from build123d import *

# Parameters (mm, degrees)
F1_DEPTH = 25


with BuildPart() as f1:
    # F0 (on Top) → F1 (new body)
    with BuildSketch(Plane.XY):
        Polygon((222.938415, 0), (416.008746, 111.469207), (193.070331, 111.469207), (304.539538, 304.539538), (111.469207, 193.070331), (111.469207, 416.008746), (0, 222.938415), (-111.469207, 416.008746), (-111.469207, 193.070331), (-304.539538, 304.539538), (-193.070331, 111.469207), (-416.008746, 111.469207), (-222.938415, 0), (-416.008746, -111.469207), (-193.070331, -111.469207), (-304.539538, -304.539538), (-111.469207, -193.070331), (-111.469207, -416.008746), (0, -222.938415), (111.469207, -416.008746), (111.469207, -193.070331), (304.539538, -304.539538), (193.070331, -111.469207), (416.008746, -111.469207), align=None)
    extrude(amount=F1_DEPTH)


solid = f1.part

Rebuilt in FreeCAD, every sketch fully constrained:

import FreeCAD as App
import Part
import Sketcher
Q = App.Units.Quantity

doc = App.newDocument("Part")
body = doc.addObject("PartDesign::Body", "Body")

sketch1 = body.newObject("Sketcher::SketchObject", "Sketch")
sketch1.AttachmentSupport = (doc.getObject("XY_Plane"), [""])
sketch1.MapMode = "FlatFace"
sketch1.addGeometry([
    Part.LineSegment(App.Vector(223, 0, 0), App.Vector(416, 111, 0)),
    Part.LineSegment(App.Vector(416, 111, 0), App.Vector(193, 111, 0)),
    Part.LineSegment(App.Vector(193, 111, 0), App.Vector(305, 305, 0)),
    Part.LineSegment(App.Vector(305, 305, 0), App.Vector(111, 193, 0)),
    Part.LineSegment(App.Vector(111, 193, 0), App.Vector(111, 416, 0)),
    Part.LineSegment(App.Vector(111, 416, 0), App.Vector(0, 223, 0)),
    Part.LineSegment(App.Vector(0, 223, 0), App.Vector(-111, 416, 0)),
    Part.LineSegment(App.Vector(-111, 416, 0), App.Vector(-111, 193, 0)),
    Part.LineSegment(App.Vector(-111, 193, 0), App.Vector(-305, 305, 0)),
    Part.LineSegment(App.Vector(-305, 305, 0), App.Vector(-193, 111, 0)),
    Part.LineSegment(App.Vector(-193, 111, 0), App.Vector(-416, 111, 0)),
    Part.LineSegment(App.Vector(-416, 111, 0), App.Vector(-223, 0, 0)),
    Part.LineSegment(App.Vector(-223, 0, 0), App.Vector(-416, -111, 0)),
    Part.LineSegment(App.Vector(-416, -111, 0), App.Vector(-193, -111, 0)),
    Part.LineSegment(App.Vector(-193, -111, 0), App.Vector(-305, -305, 0)),
    Part.LineSegment(App.Vector(-305, -305, 0), App.Vector(-111, -193, 0)),
    Part.LineSegment(App.Vector(-111, -193, 0), App.Vector(-111, -416, 0)),
    Part.LineSegment(App.Vector(-111, -416, 0), App.Vector(0, -223, 0)),
    Part.LineSegment(App.Vector(0, -223, 0), App.Vector(111, -416, 0)),
    Part.LineSegment(App.Vector(111, -416, 0), App.Vector(111, -193, 0)),
    Part.LineSegment(App.Vector(111, -193, 0), App.Vector(305, -305, 0)),
    Part.LineSegment(App.Vector(305, -305, 0), App.Vector(193, -111, 0)),
    Part.LineSegment(App.Vector(193, -111, 0), App.Vector(416, -111, 0)),
    Part.LineSegment(App.Vector(416, -111, 0), App.Vector(223, 0, 0)),
], False)
sketch1.addConstraint([
    Sketcher.Constraint("Coincident", 0, 2, 1, 1),
    Sketcher.Constraint("Coincident", 1, 2, 2, 1),
    Sketcher.Constraint("Coincident", 2, 2, 3, 1),
    Sketcher.Constraint("Coincident", 3, 2, 4, 1),
    Sketcher.Constraint("Coincident", 4, 2, 5, 1),
    Sketcher.Constraint("Coincident", 5, 2, 6, 1),
    Sketcher.Constraint("Coincident", 6, 2, 7, 1),
    Sketcher.Constraint("Coincident", 7, 2, 8, 1),
    Sketcher.Constraint("Coincident", 8, 2, 9, 1),
    Sketcher.Constraint("Coincident", 9, 2, 10, 1),
    Sketcher.Constraint("Coincident", 10, 2, 11, 1),
    Sketcher.Constraint("Coincident", 11, 2, 12, 1),
    Sketcher.Constraint("Coincident", 12, 2, 13, 1),
    Sketcher.Constraint("Coincident", 13, 2, 14, 1),
    Sketcher.Constraint("Coincident", 14, 2, 15, 1),
    Sketcher.Constraint("Coincident", 15, 2, 16, 1),
    Sketcher.Constraint("Coincident", 16, 2, 17, 1),
    Sketcher.Constraint("Coincident", 17, 2, 18, 1),
    Sketcher.Constraint("Coincident", 18, 2, 19, 1),
    Sketcher.Constraint("Coincident", 19, 2, 20, 1),
    Sketcher.Constraint("Coincident", 20, 2, 21, 1),
    Sketcher.Constraint("Coincident", 21, 2, 22, 1),
    Sketcher.Constraint("Coincident", 22, 2, 23, 1),
    Sketcher.Constraint("Coincident", 23, 2, 0, 1),
    Sketcher.Constraint("Horizontal", 1),
    Sketcher.Constraint("Vertical", 4),
    Sketcher.Constraint("Vertical", 7),
    Sketcher.Constraint("Horizontal", 10),
    Sketcher.Constraint("Horizontal", 13),
    Sketcher.Constraint("Vertical", 16),
    Sketcher.Constraint("Vertical", 19),
    Sketcher.Constraint("Horizontal", 22),
    Sketcher.Constraint("Symmetric", 0, 2, 12, 2, -1, 1),
    Sketcher.Constraint("Symmetric", 2, 2, 14, 2, -1, 1),
    Sketcher.Constraint("Symmetric", 3, 2, 15, 2, -1, 1),
    Sketcher.Constraint("Symmetric", 5, 2, 17, 2, -1, 1),
    Sketcher.Constraint("Symmetric", 6, 2, 18, 2, -1, 1),
    Sketcher.Constraint("Symmetric", 8, 2, 20, 2, -1, 1),
    Sketcher.Constraint("Symmetric", 9, 2, 21, 2, -1, 1),
    Sketcher.Constraint("Symmetric", 11, 2, 23, 2, -1, 1),
    Sketcher.Constraint("Symmetric", 4, 2, 6, 2, -2),
    Sketcher.Constraint("Symmetric", 2, 2, 8, 2, -2),
    Sketcher.Constraint("Symmetric", 1, 2, 9, 2, -2),
    Sketcher.Constraint("PointOnObject", 5, 2, -2),
    Sketcher.Constraint("PointOnObject", 11, 2, -1),
    Sketcher.Constraint("Parallel", 0, 3),
    Sketcher.Constraint("Parallel", 2, 5),
    Sketcher.Constraint("Perpendicular", 3, 6),
    Sketcher.Constraint("Perpendicular", 5, 8),
    Sketcher.Constraint("Parallel", 8, 11),
    Sketcher.Constraint("Perpendicular", 11, 14),
    Sketcher.Constraint("Parallel", 14, 17),
    Sketcher.Constraint("Perpendicular", 17, 20),
    Sketcher.Constraint("Parallel", 20, 23),
    Sketcher.Constraint("Equal", 22, 4),
    Sketcher.Constraint("Equal", 0, 2),
    Sketcher.Constraint("Equal", 2, 3),
    Sketcher.Constraint("Equal", 3, 5),
    Sketcher.Constraint("Angle", 0, Q("30 deg")),
    Sketcher.Constraint("DistanceX", 1, 2, 1, 1, Q("222.938415 mm")),
    Sketcher.Constraint("DistanceX", -1, 1, 1, 2, Q("193.070331 mm")),
])
pad1 = body.newObject("PartDesign::Pad", "Pad")
pad1.Profile = sketch1
pad1.Length = 25

doc.recompute()
